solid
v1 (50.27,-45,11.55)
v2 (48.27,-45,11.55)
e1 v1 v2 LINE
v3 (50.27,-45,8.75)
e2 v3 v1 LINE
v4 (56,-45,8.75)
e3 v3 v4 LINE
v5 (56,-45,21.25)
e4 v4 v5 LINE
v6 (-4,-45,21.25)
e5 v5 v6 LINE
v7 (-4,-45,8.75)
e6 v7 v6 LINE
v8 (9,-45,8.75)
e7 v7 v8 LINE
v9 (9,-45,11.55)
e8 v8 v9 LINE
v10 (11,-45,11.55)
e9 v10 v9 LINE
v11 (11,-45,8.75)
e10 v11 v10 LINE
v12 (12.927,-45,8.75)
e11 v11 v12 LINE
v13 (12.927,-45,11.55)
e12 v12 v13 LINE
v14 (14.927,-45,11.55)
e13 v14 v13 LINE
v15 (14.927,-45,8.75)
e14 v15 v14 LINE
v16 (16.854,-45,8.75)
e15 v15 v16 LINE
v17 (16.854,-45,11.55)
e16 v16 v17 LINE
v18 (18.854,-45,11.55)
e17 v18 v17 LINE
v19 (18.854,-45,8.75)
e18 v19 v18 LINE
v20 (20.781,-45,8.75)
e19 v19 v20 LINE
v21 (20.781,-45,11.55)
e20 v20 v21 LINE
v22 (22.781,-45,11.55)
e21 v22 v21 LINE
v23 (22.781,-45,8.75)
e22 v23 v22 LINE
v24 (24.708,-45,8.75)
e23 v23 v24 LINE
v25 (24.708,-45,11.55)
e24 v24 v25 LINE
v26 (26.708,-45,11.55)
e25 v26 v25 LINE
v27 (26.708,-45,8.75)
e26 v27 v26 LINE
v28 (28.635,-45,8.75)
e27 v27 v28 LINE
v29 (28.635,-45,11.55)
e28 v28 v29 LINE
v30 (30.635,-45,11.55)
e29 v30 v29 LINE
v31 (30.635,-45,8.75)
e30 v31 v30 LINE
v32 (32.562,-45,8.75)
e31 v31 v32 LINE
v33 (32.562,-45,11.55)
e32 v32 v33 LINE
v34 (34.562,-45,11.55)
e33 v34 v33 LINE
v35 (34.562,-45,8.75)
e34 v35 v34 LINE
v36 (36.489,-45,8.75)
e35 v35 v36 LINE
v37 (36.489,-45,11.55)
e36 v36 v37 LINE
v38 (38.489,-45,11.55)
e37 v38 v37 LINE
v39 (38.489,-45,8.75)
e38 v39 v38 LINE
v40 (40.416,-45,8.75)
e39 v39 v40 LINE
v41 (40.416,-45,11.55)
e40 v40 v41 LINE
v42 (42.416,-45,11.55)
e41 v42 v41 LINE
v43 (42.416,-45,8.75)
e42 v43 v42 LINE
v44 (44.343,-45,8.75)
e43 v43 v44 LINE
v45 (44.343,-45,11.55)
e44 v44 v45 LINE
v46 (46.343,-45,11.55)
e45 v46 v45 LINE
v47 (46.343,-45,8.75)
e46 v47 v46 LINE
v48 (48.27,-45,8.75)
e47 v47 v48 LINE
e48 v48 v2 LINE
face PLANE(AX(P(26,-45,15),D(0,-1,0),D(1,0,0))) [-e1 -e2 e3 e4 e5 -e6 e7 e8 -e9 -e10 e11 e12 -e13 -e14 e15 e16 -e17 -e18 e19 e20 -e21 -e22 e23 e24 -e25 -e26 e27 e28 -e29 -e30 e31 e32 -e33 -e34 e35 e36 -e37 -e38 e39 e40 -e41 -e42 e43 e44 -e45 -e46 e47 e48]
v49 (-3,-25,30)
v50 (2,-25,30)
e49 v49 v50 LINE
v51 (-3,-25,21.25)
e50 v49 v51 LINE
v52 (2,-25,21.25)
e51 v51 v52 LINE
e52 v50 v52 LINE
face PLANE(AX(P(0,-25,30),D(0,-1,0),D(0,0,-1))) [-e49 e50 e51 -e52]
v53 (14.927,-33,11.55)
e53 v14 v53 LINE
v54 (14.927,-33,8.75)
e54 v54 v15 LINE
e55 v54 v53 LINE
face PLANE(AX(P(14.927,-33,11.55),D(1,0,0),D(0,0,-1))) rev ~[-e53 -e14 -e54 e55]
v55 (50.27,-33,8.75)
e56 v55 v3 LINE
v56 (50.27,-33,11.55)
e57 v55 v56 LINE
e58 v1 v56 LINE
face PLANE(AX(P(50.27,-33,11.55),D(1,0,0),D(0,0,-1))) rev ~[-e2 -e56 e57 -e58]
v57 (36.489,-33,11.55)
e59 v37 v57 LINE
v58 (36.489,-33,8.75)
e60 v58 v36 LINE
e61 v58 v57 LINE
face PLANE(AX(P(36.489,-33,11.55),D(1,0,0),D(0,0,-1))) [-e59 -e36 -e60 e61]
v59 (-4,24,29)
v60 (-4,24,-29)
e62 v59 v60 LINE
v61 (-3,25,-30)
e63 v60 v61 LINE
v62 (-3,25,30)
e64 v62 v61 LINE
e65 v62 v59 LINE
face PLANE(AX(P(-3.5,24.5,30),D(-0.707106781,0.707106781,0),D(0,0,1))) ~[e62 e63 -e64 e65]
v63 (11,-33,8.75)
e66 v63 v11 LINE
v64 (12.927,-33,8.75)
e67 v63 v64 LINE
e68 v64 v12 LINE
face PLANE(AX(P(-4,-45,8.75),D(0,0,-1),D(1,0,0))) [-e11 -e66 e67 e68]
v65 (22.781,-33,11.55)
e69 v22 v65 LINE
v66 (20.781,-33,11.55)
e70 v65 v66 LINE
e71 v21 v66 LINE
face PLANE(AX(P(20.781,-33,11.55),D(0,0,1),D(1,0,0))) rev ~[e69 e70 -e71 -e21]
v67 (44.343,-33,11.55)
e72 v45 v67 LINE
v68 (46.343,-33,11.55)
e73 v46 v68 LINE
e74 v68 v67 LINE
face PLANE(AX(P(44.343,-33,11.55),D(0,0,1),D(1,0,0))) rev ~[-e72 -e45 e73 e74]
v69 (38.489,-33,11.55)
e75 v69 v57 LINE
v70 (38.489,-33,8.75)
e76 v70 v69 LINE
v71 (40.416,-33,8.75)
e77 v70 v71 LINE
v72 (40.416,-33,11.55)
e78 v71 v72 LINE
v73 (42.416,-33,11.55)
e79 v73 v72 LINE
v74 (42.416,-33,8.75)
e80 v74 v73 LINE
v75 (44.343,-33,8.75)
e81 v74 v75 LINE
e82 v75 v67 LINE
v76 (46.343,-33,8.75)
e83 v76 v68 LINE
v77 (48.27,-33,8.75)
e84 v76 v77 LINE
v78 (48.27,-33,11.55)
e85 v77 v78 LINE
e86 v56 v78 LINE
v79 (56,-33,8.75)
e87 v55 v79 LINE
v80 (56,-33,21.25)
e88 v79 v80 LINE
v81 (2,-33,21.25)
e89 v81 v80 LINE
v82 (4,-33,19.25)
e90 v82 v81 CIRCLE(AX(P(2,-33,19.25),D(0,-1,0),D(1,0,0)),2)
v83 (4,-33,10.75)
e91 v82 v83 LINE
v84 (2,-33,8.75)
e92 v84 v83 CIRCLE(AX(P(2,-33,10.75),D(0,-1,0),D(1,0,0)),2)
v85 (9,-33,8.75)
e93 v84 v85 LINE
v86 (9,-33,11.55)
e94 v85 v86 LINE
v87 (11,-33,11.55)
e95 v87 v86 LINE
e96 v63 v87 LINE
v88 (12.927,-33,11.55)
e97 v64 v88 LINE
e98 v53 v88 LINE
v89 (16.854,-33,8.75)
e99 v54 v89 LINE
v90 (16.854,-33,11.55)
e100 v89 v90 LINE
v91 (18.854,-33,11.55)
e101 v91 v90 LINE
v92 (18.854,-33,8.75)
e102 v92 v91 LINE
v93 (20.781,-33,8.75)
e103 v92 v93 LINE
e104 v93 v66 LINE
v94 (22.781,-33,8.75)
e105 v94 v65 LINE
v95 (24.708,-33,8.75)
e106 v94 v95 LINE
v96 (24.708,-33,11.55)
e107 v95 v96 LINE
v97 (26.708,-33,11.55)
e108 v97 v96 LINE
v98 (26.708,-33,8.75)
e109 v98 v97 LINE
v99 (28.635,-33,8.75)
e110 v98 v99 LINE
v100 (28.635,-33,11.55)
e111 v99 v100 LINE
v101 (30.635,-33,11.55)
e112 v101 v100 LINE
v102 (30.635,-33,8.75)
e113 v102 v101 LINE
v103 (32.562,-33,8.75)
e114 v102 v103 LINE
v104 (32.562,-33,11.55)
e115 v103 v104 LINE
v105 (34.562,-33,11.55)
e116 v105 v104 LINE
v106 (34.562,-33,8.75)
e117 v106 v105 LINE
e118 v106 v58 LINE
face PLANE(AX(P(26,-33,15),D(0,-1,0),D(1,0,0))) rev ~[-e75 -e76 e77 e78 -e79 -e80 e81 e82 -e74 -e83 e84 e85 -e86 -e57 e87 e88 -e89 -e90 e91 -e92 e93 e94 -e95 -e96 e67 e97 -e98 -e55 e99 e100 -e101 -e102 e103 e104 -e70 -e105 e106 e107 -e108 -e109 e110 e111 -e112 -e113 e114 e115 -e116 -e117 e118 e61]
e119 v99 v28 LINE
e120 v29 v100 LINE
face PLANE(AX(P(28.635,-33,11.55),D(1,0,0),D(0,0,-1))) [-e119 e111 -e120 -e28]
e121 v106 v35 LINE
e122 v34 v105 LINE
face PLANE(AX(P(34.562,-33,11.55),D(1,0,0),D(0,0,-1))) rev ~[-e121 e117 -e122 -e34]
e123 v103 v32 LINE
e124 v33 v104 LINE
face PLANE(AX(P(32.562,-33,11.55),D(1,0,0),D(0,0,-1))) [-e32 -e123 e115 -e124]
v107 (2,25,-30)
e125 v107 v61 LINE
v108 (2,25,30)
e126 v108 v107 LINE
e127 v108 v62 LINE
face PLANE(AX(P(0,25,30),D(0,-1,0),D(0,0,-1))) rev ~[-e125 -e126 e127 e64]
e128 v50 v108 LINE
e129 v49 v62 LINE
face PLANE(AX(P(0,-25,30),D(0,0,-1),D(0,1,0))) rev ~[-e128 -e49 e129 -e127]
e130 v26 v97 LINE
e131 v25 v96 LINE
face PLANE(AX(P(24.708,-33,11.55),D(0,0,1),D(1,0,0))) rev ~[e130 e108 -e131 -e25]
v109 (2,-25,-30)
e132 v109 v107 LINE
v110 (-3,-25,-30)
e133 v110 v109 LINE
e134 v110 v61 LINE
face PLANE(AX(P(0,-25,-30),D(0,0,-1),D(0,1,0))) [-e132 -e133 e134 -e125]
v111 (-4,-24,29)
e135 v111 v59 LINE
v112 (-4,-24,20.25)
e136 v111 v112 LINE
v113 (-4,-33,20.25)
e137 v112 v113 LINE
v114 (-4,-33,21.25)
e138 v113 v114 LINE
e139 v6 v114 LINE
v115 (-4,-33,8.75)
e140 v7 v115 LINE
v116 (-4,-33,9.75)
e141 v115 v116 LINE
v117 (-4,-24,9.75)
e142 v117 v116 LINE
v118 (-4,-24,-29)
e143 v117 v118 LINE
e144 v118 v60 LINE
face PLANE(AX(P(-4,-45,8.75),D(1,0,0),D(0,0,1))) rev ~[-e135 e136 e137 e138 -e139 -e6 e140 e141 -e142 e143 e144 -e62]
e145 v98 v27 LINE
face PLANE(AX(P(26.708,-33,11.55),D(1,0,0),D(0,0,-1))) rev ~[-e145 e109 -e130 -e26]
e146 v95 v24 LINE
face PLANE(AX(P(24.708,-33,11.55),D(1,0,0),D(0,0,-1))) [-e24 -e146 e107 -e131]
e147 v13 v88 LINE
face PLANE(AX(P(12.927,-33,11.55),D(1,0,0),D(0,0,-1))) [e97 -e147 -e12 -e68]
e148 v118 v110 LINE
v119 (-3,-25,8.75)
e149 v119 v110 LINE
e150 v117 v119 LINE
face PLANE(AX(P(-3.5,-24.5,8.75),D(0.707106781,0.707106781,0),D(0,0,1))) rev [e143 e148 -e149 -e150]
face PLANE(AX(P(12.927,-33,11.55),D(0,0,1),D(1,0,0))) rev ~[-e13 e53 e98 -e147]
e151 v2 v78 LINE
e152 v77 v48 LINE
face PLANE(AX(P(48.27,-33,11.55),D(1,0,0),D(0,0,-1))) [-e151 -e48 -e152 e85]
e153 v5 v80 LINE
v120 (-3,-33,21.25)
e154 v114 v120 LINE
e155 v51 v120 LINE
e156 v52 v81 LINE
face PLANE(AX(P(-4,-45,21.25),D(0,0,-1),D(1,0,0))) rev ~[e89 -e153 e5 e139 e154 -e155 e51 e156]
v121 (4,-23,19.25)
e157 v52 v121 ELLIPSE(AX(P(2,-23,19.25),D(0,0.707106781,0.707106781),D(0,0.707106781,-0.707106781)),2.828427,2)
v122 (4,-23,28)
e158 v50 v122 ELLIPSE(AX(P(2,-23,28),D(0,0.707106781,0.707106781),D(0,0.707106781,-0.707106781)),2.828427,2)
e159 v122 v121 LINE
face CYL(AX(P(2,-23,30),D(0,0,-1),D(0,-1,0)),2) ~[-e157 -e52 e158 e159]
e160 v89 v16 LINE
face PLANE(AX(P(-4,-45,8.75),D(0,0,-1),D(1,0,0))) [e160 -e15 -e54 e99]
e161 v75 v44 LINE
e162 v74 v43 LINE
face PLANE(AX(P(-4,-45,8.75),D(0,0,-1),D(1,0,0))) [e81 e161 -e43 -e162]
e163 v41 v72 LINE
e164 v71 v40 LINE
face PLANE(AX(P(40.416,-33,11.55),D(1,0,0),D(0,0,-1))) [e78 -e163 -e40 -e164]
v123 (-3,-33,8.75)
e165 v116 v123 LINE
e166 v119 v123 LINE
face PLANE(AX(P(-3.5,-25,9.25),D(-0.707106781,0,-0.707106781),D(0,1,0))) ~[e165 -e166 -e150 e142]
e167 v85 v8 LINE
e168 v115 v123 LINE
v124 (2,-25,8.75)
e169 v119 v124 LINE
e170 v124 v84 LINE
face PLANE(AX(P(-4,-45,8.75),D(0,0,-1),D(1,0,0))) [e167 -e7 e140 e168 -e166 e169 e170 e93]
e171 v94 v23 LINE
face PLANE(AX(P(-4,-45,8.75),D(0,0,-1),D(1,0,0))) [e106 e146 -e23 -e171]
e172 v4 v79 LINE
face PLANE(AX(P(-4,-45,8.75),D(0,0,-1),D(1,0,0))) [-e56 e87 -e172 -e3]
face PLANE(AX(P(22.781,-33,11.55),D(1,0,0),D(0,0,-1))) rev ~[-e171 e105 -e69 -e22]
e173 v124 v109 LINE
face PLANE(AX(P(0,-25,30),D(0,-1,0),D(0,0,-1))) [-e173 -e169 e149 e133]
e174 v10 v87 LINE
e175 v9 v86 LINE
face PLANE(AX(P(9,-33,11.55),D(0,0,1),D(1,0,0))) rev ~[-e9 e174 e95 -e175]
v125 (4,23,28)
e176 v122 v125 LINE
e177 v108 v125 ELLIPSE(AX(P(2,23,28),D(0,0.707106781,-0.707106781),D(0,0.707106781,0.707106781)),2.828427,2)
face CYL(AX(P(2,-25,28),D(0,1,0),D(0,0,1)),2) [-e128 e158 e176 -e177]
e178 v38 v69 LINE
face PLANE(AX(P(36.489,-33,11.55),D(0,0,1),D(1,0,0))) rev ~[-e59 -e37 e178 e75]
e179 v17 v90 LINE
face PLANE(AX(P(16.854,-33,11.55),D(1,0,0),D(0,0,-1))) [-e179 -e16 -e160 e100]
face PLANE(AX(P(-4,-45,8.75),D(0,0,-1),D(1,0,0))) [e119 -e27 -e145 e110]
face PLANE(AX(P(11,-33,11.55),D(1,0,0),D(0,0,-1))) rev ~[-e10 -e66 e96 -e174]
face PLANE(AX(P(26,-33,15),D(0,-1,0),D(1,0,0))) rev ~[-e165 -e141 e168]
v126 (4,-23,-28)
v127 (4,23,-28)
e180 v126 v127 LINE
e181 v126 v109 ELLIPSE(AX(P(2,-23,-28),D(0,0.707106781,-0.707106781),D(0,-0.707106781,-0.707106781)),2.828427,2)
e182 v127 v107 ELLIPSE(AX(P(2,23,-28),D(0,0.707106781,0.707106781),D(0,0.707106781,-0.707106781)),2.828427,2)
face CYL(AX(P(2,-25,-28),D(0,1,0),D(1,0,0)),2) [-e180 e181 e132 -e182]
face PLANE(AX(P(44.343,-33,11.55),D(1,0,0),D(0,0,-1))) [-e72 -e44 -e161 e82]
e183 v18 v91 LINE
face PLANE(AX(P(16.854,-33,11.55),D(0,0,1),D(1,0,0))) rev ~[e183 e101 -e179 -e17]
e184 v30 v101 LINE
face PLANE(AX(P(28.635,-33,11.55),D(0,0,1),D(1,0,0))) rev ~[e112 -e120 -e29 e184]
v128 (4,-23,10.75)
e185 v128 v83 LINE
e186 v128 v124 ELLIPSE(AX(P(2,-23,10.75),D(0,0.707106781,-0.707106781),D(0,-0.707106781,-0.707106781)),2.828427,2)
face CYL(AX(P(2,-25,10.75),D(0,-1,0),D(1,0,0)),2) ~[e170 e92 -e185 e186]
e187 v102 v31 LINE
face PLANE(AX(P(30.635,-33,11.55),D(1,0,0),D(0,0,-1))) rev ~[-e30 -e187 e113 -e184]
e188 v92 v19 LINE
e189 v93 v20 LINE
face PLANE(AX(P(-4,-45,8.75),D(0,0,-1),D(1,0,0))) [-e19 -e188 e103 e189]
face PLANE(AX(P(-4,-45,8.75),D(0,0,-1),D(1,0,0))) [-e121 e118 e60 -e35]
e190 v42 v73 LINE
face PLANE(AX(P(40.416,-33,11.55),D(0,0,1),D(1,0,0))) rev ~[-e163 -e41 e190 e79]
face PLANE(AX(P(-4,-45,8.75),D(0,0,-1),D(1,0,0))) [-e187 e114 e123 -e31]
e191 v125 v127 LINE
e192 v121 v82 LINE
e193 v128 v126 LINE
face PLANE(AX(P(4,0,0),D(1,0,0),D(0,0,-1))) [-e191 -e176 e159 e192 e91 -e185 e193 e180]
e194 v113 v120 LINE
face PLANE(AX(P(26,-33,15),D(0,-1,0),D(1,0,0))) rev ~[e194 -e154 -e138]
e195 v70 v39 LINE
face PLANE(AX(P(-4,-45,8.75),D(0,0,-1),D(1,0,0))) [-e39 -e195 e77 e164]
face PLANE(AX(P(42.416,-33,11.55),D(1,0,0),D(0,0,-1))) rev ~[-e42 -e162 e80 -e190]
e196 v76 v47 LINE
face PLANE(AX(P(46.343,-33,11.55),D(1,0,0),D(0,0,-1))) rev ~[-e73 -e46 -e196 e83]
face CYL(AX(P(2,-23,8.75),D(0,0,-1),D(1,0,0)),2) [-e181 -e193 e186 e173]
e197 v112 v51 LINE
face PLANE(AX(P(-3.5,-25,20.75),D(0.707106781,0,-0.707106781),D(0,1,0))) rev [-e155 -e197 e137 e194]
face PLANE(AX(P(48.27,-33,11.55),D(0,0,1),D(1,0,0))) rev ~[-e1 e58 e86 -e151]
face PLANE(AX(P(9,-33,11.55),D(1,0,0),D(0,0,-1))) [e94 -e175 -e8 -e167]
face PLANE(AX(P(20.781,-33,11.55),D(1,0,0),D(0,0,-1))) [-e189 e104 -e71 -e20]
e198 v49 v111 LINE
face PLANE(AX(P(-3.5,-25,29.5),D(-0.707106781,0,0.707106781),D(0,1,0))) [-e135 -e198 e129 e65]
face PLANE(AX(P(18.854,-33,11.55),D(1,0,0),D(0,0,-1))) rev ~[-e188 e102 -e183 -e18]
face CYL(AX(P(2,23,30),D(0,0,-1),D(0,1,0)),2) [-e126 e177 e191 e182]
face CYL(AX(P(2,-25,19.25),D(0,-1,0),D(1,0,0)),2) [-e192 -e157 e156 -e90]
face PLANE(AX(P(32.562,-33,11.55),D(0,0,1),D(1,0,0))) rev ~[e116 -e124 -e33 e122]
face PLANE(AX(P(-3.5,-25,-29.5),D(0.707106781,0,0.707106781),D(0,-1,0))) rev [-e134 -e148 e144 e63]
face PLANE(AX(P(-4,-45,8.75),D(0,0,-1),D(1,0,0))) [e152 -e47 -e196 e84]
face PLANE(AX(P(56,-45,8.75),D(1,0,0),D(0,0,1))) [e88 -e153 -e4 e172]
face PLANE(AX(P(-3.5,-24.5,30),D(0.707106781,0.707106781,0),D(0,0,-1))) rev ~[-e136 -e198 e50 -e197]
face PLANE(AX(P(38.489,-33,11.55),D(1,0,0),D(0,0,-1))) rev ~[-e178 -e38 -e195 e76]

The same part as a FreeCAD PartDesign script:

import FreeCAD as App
import Part
import Sketcher
Q = App.Units.Quantity


def edges_at(feature, points):
    """Names of the edges that pass closest to the given points."""
    edges = feature.Shape.Edges
    near = lambda p: min(range(len(edges)), key=lambda i: edges[i].distToShape(Part.Vertex(*p))[0])
    return sorted({f"Edge{near(p) + 1}" for p in points})

doc = App.newDocument("Part")
params = doc.addObject("Spreadsheet::Sheet", "Params")
for row, (alias, value) in enumerate([
    ("sketch1_width", "50 mm"),
    ("sketch1_height", "60 mm"),
    ("pad1_length", "8 mm"),
    ("sketch2_width", "8 mm"),
    ("sketch2_height", "12.5 mm"),
    ("pad2_length", "20 mm"),
    ("fillet_radius", "2 mm"),
    ("chamfer_size", "1 mm"),
    ("sketch3_width", "60 mm"),
    ("sketch3_height", "12.5 mm"),
    ("pad3_length", "12 mm"),
    ("sketch4_width", "2 mm"),
    ("sketch4_height", "2.8 mm"),
    ("pocket1_length", "174.046505 mm"),
    ("linearpattern_pitch", "3.927 mm"),
], start=1):
    params.set(f"A{row}", alias)
    params.set(f"B{row}", "=" + value)
    params.setAlias(f"B{row}", alias)

body = doc.addObject("PartDesign::Body", "Body")

# Sketch on YZ plane
sketch1 = body.newObject("Sketcher::SketchObject", "Sketch")
sketch1.AttachmentSupport = (doc.getObject("YZ_Plane"), [""])
sketch1.MapMode = "FlatFace"
sketch1.addGeometry(Part.LineSegment(App.Vector(25, 30, 0), App.Vector(-25, 30, 0)), False)
sketch1.addGeometry(Part.LineSegment(App.Vector(-25, 30, 0), App.Vector(-25, -30, 0)), False)
sketch1.addGeometry(Part.LineSegment(App.Vector(-25, -30, 0), App.Vector(25, -30, 0)), False)
sketch1.addGeometry(Part.LineSegment(App.Vector(25, -30, 0), App.Vector(25, 30, 0)), False)
sketch1.addConstraint(Sketcher.Constraint("Coincident", 0, 2, 1, 1))
sketch1.addConstraint(Sketcher.Constraint("Coincident", 1, 2, 2, 1))
sketch1.addConstraint(Sketcher.Constraint("Coincident", 2, 2, 3, 1))
sketch1.addConstraint(Sketcher.Constraint("Coincident", 3, 2, 0, 1))
sketch1.addConstraint(Sketcher.Constraint("Horizontal", 0))
sketch1.addConstraint(Sketcher.Constraint("Vertical", 1))
sketch1.addConstraint(Sketcher.Constraint("Horizontal", 2))
sketch1.addConstraint(Sketcher.Constraint("Vertical", 3))
sketch1.addConstraint(Sketcher.Constraint("Symmetric", 0, 2, 2, 2, -1, 1))
sketch1.addConstraint(Sketcher.Constraint("DistanceX", 0, 2, 0, 1, Q("50 mm")))
sketch1.addConstraint(Sketcher.Constraint("DistanceY", 1, 2, 1, 1, Q("60 mm")))
sketch1.setExpression("Constraints[9]", "Params.sketch1_width")
sketch1.setExpression("Constraints[10]", "Params.sketch1_height")
pad1 = body.newObject("PartDesign::Pad", "Pad")
pad1.Profile = sketch1
pad1.setExpression("Length", "Params.pad1_length")
pad1.Midplane = True

# Sketch on XZ plane
sketch2 = body.newObject("Sketcher::SketchObject", "Sketch001")
sketch2.AttachmentSupport = (doc.getObject("XZ_Plane"), [""])
sketch2.MapMode = "FlatFace"
sketch2.AttachmentOffset = App.Placement(App.Vector(0, 0, 25), App.Rotation())
sketch2.addGeometry(Part.LineSegment(App.Vector(-4, 21, 0), App.Vector(-4, 9, 0)), False)
sketch2.addGeometry(Part.LineSegment(App.Vector(-4, 9, 0), App.Vector(4, 9, 0)), False)
sketch2.addGeometry(Part.LineSegment(App.Vector(4, 9, 0), App.Vector(4, 21, 0)), False)
sketch2.addGeometry(Part.LineSegment(App.Vector(4, 21, 0), App.Vector(-4, 21, 0)), False)
sketch2.addConstraint(Sketcher.Constraint("Coincident", 0, 2, 1, 1))
sketch2.addConstraint(Sketcher.Constraint("Coincident", 1, 2, 2, 1))
sketch2.addConstraint(Sketcher.Constraint("Coincident", 2, 2, 3, 1))
sketch2.addConstraint(Sketcher.Constraint("Coincident", 3, 2, 0, 1))
sketch2.addConstraint(Sketcher.Constraint("Vertical", 0))
sketch2.addConstraint(Sketcher.Constraint("Horizontal", 1))
sketch2.addConstraint(Sketcher.Constraint("Vertical", 2))
sketch2.addConstraint(Sketcher.Constraint("Horizontal", 3))
sketch2.addConstraint(Sketcher.Constraint("DistanceX", 1, 1, 1, 2, Q("8 mm")))
sketch2.addConstraint(Sketcher.Constraint("DistanceY", 0, 2, 0, 1, Q("12.5 mm")))
sketch2.addConstraint(Sketcher.Constraint("DistanceX", 0, 2, -1, 1, Q("4 mm")))
sketch2.addConstraint(Sketcher.Constraint("DistanceY", -1, 1, 0, 2, Q("8.75 mm")))
sketch2.setExpression("Constraints[8]", "Params.sketch2_width")
sketch2.setExpression("Constraints[9]", "Params.sketch2_height")
pad2 = body.newObject("PartDesign::Pad", "Pad001")
pad2.Profile = sketch2
pad2.setExpression("Length", "Params.pad2_length")
doc.recompute()

fillet = body.newObject("PartDesign::Fillet", "Fillet")
fillet.Base = (pad2, edges_at(pad2, [
    (4, 0, 30),
    (4, -25, -10.625),
    (4, -25, 25.625),
    (4, -35, 8.75),
    (4, -35, 21.25),
    (4, -45, 15),
    (4, 0, -30),
    (4, 25, 0),
]))
fillet.setExpression("Radius", "Params.fillet_radius")
doc.recompute()

chamfer = body.newObject("PartDesign::Chamfer", "Chamfer")
chamfer.Base = (fillet, edges_at(fillet, [
    (-4, -25, -10.625),
    (-4, -35, 21.25),
    (-4, -35, 8.75),
    (-4, -45, 15),
    (-4, -25, 25.625),
    (-4, 0, 30),
    (-4, 25, 0),
    (-4, 0, -30),
]))
chamfer.setExpression("Size", "Params.chamfer_size")

# Sketch on XZ plane
sketch3 = body.newObject("Sketcher::SketchObject", "Sketch002")
sketch3.AttachmentSupport = (doc.getObject("XZ_Plane"), [""])
sketch3.MapMode = "FlatFace"
sketch3.AttachmentOffset = App.Placement(App.Vector(0, 0, 45), App.Rotation())
sketch3.addGeometry(Part.LineSegment(App.Vector(-4, 21, 0), App.Vector(-4, 9, 0)), False)
sketch3.addGeometry(Part.LineSegment(App.Vector(-4, 9, 0), App.Vector(56, 9, 0)), False)
sketch3.addGeometry(Part.LineSegment(App.Vector(56, 9, 0), App.Vector(56, 21, 0)), False)
sketch3.addGeometry(Part.LineSegment(App.Vector(56, 21, 0), App.Vector(-4, 21, 0)), False)
sketch3.addConstraint(Sketcher.Constraint("Coincident", 0, 2, 1, 1))
sketch3.addConstraint(Sketcher.Constraint("Coincident", 1, 2, 2, 1))
sketch3.addConstraint(Sketcher.Constraint("Coincident", 2, 2, 3, 1))
sketch3.addConstraint(Sketcher.Constraint("Coincident", 3, 2, 0, 1))
sketch3.addConstraint(Sketcher.Constraint("Vertical", 0))
sketch3.addConstraint(Sketcher.Constraint("Horizontal", 1))
sketch3.addConstraint(Sketcher.Constraint("Vertical", 2))
sketch3.addConstraint(Sketcher.Constraint("Horizontal", 3))
sketch3.addConstraint(Sketcher.Constraint("DistanceX", 1, 1, 1, 2, Q("60 mm")))
sketch3.addConstraint(Sketcher.Constraint("DistanceY", 0, 2, 0, 1, Q("12.5 mm")))
sketch3.addConstraint(Sketcher.Constraint("DistanceX", 0, 2, -1, 1, Q("4 mm")))
sketch3.addConstraint(Sketcher.Constraint("DistanceY", -1, 1, 0, 2, Q("8.75 mm")))
sketch3.setExpression("Constraints[8]", "Params.sketch3_width")
sketch3.setExpression("Constraints[9]", "Params.sketch3_height")
pad3 = body.newObject("PartDesign::Pad", "Pad002")
pad3.Profile = sketch3
pad3.setExpression("Length", "Params.pad3_length")
pad3.Reversed = True

# Sketch on XZ plane
sketch4 = body.newObject("Sketcher::SketchObject", "Sketch003")
sketch4.AttachmentSupport = (doc.getObject("XZ_Plane"), [""])
sketch4.MapMode = "FlatFace"
sketch4.AttachmentOffset = App.Placement(App.Vector(0, 0, 33), App.Rotation())
sketch4.addGeometry(Part.LineSegment(App.Vector(9, 8.8, 0), App.Vector(9, 11.6, 0)), False)
sketch4.addGeometry(Part.LineSegment(App.Vector(9, 11.6, 0), App.Vector(11, 11.6, 0)), False)
sketch4.addGeometry(Part.LineSegment(App.Vector(11, 11.6, 0), App.Vector(11, 8.8, 0)), False)
sketch4.addGeometry(Part.LineSegment(App.Vector(11, 8.8, 0), App.Vector(9, 8.8, 0)), False)
sketch4.addConstraint(Sketcher.Constraint("Coincident", 0, 2, 1, 1))
sketch4.addConstraint(Sketcher.Constraint("Coincident", 1, 2, 2, 1))
sketch4.addConstraint(Sketcher.Constraint("Coincident", 2, 2, 3, 1))
sketch4.addConstraint(Sketcher.Constraint("Coincident", 3, 2, 0, 1))
sketch4.addConstraint(Sketcher.Constraint("Vertical", 0))
sketch4.addConstraint(Sketcher.Constraint("Horizontal", 1))
sketch4.addConstraint(Sketcher.Constraint("Vertical", 2))
sketch4.addConstraint(Sketcher.Constraint("Horizontal", 3))
sketch4.addConstraint(Sketcher.Constraint("DistanceX", 1, 1, 1, 2, Q("2 mm")))
sketch4.addConstraint(Sketcher.Constraint("DistanceY", 0, 1, 0, 2, Q("2.8 mm")))
sketch4.addConstraint(Sketcher.Constraint("DistanceX", -1, 1, 0, 2, Q("9 mm")))
sketch4.addConstraint(Sketcher.Constraint("DistanceY", -1, 1, 0, 2, Q("11.55 mm")))
sketch4.setExpression("Constraints[8]", "Params.sketch4_width")
sketch4.setExpression("Constraints[9]", "Params.sketch4_height")
pocket1 = body.newObject("PartDesign::Pocket", "Pocket")
pocket1.Profile = sketch4
pocket1.setExpression("Length", "Params.pocket1_length")
pocket1.Midplane = True
doc.recompute()

linearpattern = body.newObject("PartDesign::LinearPattern", "LinearPattern")
linearpattern.Originals = [pocket1]
linearpattern.Direction = (doc.getObject("X_Axis"), [""])
linearpattern.Mode = "offset"
linearpattern.setExpression("Offset", "Params.linearpattern_pitch")
linearpattern.Occurrences = 11
body.Tip = linearpattern

doc.recompute()
